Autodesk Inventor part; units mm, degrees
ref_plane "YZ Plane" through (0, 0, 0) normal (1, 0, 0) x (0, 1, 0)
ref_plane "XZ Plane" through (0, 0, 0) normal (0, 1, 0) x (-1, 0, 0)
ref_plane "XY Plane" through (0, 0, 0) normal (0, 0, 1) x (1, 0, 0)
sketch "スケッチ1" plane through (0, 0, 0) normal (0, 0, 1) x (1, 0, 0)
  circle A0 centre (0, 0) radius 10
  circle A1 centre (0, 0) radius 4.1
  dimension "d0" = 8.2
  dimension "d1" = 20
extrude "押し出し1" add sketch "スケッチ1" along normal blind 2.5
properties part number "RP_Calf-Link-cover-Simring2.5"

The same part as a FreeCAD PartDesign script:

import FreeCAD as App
import Part
import Sketcher

doc = App.newDocument("Part")
body = doc.addObject("PartDesign::Body", "Body")

sketch1 = body.newObject("Sketcher::SketchObject", "Sketch")
sketch1.AttachmentSupport = (doc.getObject("XY_Plane"), [""])
sketch1.MapMode = "FlatFace"
sketch1.addGeometry([
    Part.Circle(App.Vector(0, 0, 0), App.Vector(0, 0, 1), 10),
    Part.Circle(App.Vector(0, 0, 0), App.Vector(0, 0, 1), 4.1),
], False)
sketch1.addConstraint([
    Sketcher.Constraint("Coincident", 0, 3, -1, 1),
    Sketcher.Constraint("Coincident", 1, 3, -1, 1),
    Sketcher.Constraint("Diameter", 0, 20.0),
    Sketcher.Constraint("Diameter", 1, 8.2),
])
pad1 = body.newObject("PartDesign::Pad", "Pad")
pad1.Profile = sketch1
pad1.Length = 2.5

doc.recompute()
